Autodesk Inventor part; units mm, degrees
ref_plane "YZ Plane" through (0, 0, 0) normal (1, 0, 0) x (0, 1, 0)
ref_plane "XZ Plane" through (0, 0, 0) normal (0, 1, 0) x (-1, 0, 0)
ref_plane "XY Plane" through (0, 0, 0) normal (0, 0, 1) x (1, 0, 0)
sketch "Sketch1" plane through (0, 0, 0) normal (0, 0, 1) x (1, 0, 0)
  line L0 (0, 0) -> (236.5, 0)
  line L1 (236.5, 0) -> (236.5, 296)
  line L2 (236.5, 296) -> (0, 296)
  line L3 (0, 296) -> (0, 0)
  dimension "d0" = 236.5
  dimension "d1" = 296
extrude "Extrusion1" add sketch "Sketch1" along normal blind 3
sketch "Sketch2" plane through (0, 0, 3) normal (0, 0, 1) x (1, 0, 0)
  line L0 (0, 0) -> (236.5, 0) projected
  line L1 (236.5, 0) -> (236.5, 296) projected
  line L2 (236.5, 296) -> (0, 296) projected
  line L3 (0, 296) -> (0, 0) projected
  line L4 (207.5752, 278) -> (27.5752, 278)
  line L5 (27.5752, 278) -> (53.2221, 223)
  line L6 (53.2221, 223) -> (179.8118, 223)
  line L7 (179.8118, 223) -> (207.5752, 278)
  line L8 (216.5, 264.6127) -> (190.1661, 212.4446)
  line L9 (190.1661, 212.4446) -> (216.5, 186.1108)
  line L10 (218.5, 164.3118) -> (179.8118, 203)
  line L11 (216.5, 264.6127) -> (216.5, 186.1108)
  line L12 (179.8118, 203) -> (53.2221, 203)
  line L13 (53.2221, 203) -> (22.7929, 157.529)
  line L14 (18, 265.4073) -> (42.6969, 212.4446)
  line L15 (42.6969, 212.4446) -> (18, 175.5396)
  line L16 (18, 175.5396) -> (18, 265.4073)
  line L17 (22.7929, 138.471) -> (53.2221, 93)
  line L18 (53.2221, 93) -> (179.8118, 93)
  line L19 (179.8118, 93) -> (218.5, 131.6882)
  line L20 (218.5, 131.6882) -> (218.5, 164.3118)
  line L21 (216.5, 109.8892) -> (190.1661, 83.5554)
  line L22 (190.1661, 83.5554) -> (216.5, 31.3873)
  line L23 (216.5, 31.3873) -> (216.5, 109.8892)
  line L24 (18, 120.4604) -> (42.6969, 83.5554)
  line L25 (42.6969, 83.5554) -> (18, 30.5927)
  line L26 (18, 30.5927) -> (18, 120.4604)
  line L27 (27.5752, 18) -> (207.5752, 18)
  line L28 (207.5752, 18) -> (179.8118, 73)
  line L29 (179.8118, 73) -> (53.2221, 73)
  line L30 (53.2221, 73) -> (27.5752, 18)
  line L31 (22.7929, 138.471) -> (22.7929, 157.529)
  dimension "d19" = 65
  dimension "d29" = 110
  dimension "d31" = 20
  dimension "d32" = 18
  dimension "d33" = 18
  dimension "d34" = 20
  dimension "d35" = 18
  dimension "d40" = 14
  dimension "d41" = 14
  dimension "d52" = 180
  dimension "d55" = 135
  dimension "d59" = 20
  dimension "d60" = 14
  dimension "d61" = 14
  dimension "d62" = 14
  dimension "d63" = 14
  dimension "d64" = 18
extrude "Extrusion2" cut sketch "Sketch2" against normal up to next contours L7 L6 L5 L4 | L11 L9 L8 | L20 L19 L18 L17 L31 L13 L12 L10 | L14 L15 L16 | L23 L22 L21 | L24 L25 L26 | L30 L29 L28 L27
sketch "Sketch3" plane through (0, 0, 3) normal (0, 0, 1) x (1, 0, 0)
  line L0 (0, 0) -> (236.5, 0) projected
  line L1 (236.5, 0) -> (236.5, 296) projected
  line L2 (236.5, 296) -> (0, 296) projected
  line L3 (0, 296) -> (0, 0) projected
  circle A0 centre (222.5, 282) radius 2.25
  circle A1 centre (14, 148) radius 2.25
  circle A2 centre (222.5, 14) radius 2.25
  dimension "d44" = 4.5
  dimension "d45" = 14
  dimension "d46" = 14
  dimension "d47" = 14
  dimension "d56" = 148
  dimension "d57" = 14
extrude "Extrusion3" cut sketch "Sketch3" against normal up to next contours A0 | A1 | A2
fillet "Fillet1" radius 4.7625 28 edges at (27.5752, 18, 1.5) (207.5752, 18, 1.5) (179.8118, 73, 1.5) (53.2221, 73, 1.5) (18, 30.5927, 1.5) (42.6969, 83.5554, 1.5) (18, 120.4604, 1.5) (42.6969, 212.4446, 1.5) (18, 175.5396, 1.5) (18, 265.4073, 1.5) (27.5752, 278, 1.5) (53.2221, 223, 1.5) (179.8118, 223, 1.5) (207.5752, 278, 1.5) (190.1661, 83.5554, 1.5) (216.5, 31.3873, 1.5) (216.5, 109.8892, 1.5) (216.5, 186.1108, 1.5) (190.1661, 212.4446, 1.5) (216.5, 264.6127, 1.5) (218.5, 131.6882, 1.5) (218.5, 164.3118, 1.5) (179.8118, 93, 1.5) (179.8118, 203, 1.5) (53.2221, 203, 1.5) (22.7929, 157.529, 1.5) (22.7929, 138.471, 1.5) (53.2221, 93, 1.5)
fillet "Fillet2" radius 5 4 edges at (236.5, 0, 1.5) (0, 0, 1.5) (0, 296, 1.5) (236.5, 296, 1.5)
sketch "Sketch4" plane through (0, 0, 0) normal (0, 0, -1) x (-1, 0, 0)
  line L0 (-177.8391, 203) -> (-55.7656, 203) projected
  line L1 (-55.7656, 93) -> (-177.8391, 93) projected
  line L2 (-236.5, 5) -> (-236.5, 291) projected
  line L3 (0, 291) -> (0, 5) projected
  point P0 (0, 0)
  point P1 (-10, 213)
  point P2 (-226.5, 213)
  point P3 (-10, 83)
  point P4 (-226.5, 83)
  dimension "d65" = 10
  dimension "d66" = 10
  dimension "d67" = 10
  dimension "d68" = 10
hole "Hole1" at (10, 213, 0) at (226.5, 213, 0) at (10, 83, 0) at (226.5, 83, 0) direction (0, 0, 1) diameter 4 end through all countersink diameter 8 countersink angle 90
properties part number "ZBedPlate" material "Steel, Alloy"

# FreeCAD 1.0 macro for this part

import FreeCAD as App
import Part
import Sketcher
Q = App.Units.Quantity


def edges_at(feature, points):
    """Names of the edges that pass closest to the given points."""
    edges = feature.Shape.Edges
    near = lambda p: min(range(len(edges)), key=lambda i: edges[i].distToShape(Part.Vertex(*p))[0])
    return sorted({f"Edge{near(p) + 1}" for p in points})


def add_polygon(sketch, points):
    """Adds a closed chain of lines whose ends are joined by coincident constraints."""
    first, n = sketch.GeometryCount, len(points)
    for a, b in zip(points, points[1:] + points[:1]):
        sketch.addGeometry(Part.LineSegment(App.Vector(*a, 0), App.Vector(*b, 0)), False)
    for i in range(n):
        sketch.addConstraint(Sketcher.Constraint("Coincident", first + i, 2, first + (i + 1) % n, 1))

doc = App.newDocument("Part")
params = doc.addObject("Spreadsheet::Sheet", "Params")
for row, (alias, value) in enumerate([
    ("sketch1_height", "296 mm"),
    ("sketch1_width", "236.5 mm"),
    ("pad1_length", "3 mm"),
    ("sketch2_width", "180 mm"),
    ("sketch2_length", "61.61 mm"),
    ("sketch3_diameter", "4.5 mm"),
    ("pocket2_length", "3 mm"),
    ("fillet_radius", "4.7625 mm"),
    ("fillet2_radius", "5 mm"),
    ("sketch4_diameter", "4 mm"),
    ("hole_diameter", "4 mm"),
    ("hole_csink_diameter", "8 mm"),
], start=1):
    params.set(f"A{row}", alias)
    params.set(f"B{row}", "=" + value)
    params.setAlias(f"B{row}", alias)

body = doc.addObject("PartDesign::Body", "Body")

sketch1 = doc.addObject("Sketcher::SketchObject", "Sketch")
body.addObject(sketch1)
sketch1.AttachmentSupport = (doc.XY_Plane, [""])
sketch1.MapMode = "FlatFace"
add_polygon(sketch1, [(0, 296), (0, 0), (236.5, 0), (236.5, 296)])
sketch1.addConstraint([
    Sketcher.Constraint("Vertical", 0),
    Sketcher.Constraint("Horizontal", 1),
    Sketcher.Constraint("Vertical", 2),
    Sketcher.Constraint("Horizontal", 3),
    Sketcher.Constraint("Coincident", 0, 2, -1, 1),
    Sketcher.Constraint("DistanceY", 0, 2, 0, 1, Q("296 mm")),
    Sketcher.Constraint("DistanceX", 1, 1, 1, 2, Q("236.5 mm")),
])
sketch1.setExpression("Constraints[9]", "Params.sketch1_height")
sketch1.setExpression("Constraints[10]", "Params.sketch1_width")
pad1 = doc.addObject("PartDesign::Pad", "Pad")
body.addObject(pad1)
pad1.Profile = sketch1
pad1.setExpression("Length", "Params.pad1_length")

sketch2 = doc.addObject("Sketcher::SketchObject", "Sketch001")
body.addObject(sketch2)
sketch2.AttachmentSupport = (doc.XY_Plane, [""])
sketch2.MapMode = "FlatFace"
sketch2.AttachmentOffset = App.Placement(App.Vector(0, 0, 3), App.Rotation())
add_polygon(sketch2, [(179.8118, 223), (207.5752, 278), (27.5752, 278), (53.2221, 223)])
add_polygon(sketch2, [(216.5, 186.1108), (216.5, 264.6127), (190.1661, 212.4446)])
add_polygon(sketch2, [(218.5, 131.6882), (218.5, 164.3118), (179.8118, 203), (53.2221, 203), (22.7929, 157.529), (22.7929, 138.471), (53.2221, 93), (179.8118, 93)])
add_polygon(sketch2, [(42.6969, 212.4446), (18, 265.4073), (18, 175.5396)])
add_polygon(sketch2, [(216.5, 31.3873), (216.5, 109.8892), (190.1661, 83.5554)])
add_polygon(sketch2, [(42.6969, 83.5554), (18, 120.4604), (18, 30.5927)])
add_polygon(sketch2, [(53.2221, 73), (27.5752, 18), (207.5752, 18), (179.8118, 73)])
sketch2.addConstraint([
    Sketcher.Constraint("Horizontal", 1),
    Sketcher.Constraint("Horizontal", 3),
    Sketcher.Constraint("Vertical", 4),
    Sketcher.Constraint("Vertical", 7),
    Sketcher.Constraint("Horizontal", 9),
    Sketcher.Constraint("Vertical", 11),
    Sketcher.Constraint("Horizontal", 13),
    Sketcher.Constraint("Vertical", 16),
    Sketcher.Constraint("Vertical", 18),
    Sketcher.Constraint("Vertical", 22),
    Sketcher.Constraint("Horizontal", 25),
    Sketcher.Constraint("Horizontal", 27),
    Sketcher.Constraint("Parallel", 0, 5),
    Sketcher.Constraint("Parallel", 6, 8),
    Sketcher.Constraint("Perpendicular", 8, 14),
    Sketcher.Constraint("Parallel", 2, 15),
    Sketcher.Constraint("Parallel", 10, 17),
    Sketcher.Constraint("Parallel", 14, 19),
    Sketcher.Constraint("Parallel", 12, 21),
    Sketcher.Constraint("Parallel", 23, 24),
    Sketcher.Constraint("Parallel", 20, 26),
    Sketcher.Constraint("Horizontal", 5, 2, 17, 2),
    Sketcher.Constraint("Horizontal", 19, 2, 23, 2),
    Sketcher.Constraint("Vertical", 3, 2, 8, 2),
    Sketcher.Constraint("Vertical", 2, 2, 9, 2),
    Sketcher.Constraint("Vertical", 9, 2, 12, 2),
    Sketcher.Constraint("Vertical", 8, 2, 13, 2),
    Sketcher.Constraint("Vertical", 6, 2, 18, 2),
    Sketcher.Constraint("Vertical", 5, 2, 19, 2),
    Sketcher.Constraint("Vertical", 16, 2, 21, 2),
    Sketcher.Constraint("Vertical", 17, 2, 23, 2),
    Sketcher.Constraint("Vertical", 1, 2, 24, 2),
    Sketcher.Constraint("Vertical", 0, 2, 25, 2),
    Sketcher.Constraint("Vertical", 13, 2, 26, 2),
    Sketcher.Constraint("Vertical", 12, 2, 27, 2),
    Sketcher.Constraint("Equal", 4, 18),
    Sketcher.Constraint("Equal", 16, 22),
    Sketcher.Constraint("Equal", 8, 10),
    Sketcher.Constraint("Equal", 10, 12),
    Sketcher.Constraint("Equal", 5, 15),
    Sketcher.Constraint("DistanceX", 1, 2, 1, 1, Q("180 mm")),
    Sketcher.Constraint("Angle", 2, Q("-65 deg")),
    Sketcher.Constraint("DistanceX", -1, 1, 15, 2, Q("18 mm")),
    Sketcher.Constraint("DistanceY", -1, 1, 24, 2, Q("18 mm")),
    Sketcher.Constraint("DistanceY", 8, 2, 3, 2, Q("20 mm")),
    Sketcher.Constraint("DistanceY", 12, 2, 9, 2, Q("110 mm")),
    Sketcher.Constraint("DistanceY", 26, 2, 13, 2, Q("20 mm")),
    Sketcher.Constraint("DistanceY", -1, 1, 0, 2, Q("278 mm")),
    Sketcher.Constraint("DistanceX", 6, 2, 7, 2, Q("2 mm")),
    Sketcher.Constraint("DistanceX", -1, 1, 4, 2, Q("216.5 mm")),
    Sketcher.Constraint("Angle", 10, Q("-123.7904 deg")),
    Sketcher.Constraint("Distance", 0, Q("61.61 mm")),
    Sketcher.Constraint("DistanceY", 4, 1, 4, 2, Q("78.502 mm")),
    Sketcher.Constraint("DistanceY", 11, 2, 11, 1, Q("19.058 mm")),
    Sketcher.Constraint("DistanceY", 7, 2, 6, 2, Q("21.799 mm")),
    Sketcher.Constraint("DistanceY", 18, 2, 14, 2, Q("21.799 mm")),
])
sketch2.setExpression("Constraints[68]", "Params.sketch2_width")
sketch2.setExpression("Constraints[79]", "Params.sketch2_length")
pocket1 = doc.addObject("PartDesign::Pocket", "Pocket")
body.addObject(pocket1)
pocket1.Profile = sketch2
pocket1.Type = "UpToFirst"

sketch3 = doc.addObject("Sketcher::SketchObject", "Sketch002")
body.addObject(sketch3)
sketch3.AttachmentSupport = (doc.XY_Plane, [""])
sketch3.MapMode = "FlatFace"
sketch3.AttachmentOffset = App.Placement(App.Vector(0, 0, 3), App.Rotation())
sketch3.addGeometry([
    Part.Circle(App.Vector(222.5, 282, 0), App.Vector(0, 0, 1), 2.25),
    Part.Circle(App.Vector(14, 148, 0), App.Vector(0, 0, 1), 2.25),
    Part.Circle(App.Vector(222.5, 14, 0), App.Vector(0, 0, 1), 2.25),
], False)
sketch3.addConstraint([
    Sketcher.Constraint("Equal", 0, 1),
    Sketcher.Constraint("Equal", 1, 2),
    Sketcher.Constraint("Vertical", 0, 3, 2, 3),
    Sketcher.Constraint("Diameter", 0, Q("4.5 mm")),
    Sketcher.Constraint("DistanceX", -1, 1, 1, 3, Q("14 mm")),
    Sketcher.Constraint("DistanceY", -1, 1, 1, 3, Q("148 mm")),
    Sketcher.Constraint("DistanceY", -1, 1, 2, 3, Q("14 mm")),
    Sketcher.Constraint("DistanceY", -1, 1, 0, 3, Q("282 mm")),
    Sketcher.Constraint("DistanceX", -1, 1, 0, 3, Q("222.5 mm")),
])
sketch3.setExpression("Constraints[3]", "Params.sketch3_diameter")
pocket2 = doc.addObject("PartDesign::Pocket", "Pocket001")
body.addObject(pocket2)
pocket2.Profile = sketch3
pocket2.setExpression("Length", "Params.pocket2_length")
doc.recompute()

fillet = doc.addObject("PartDesign::Fillet", "Fillet")
body.addObject(fillet)
fillet.Base = (pocket2, edges_at(pocket2, [
    (27.575, 18, 1.5),
    (207.575, 18, 1.5),
    (179.812, 73, 1.5),
    (53.222, 73, 1.5),
    (18, 30.593, 1.5),
    (42.697, 83.555, 1.5),
    (18, 120.46, 1.5),
    (42.697, 212.445, 1.5),
    (18, 175.54, 1.5),
    (18, 265.407, 1.5),
    (27.575, 278, 1.5),
    (53.222, 223, 1.5),
    (179.812, 223, 1.5),
    (207.575, 278, 1.5),
    (190.166, 83.555, 1.5),
    (216.5, 31.387, 1.5),
    (216.5, 109.889, 1.5),
    (216.5, 186.111, 1.5),
    (190.166, 212.445, 1.5),
    (216.5, 264.613, 1.5),
    (218.5, 131.688, 1.5),
    (218.5, 164.312, 1.5),
    (179.812, 93, 1.5),
    (179.812, 203, 1.5),
    (53.222, 203, 1.5),
    (22.793, 157.529, 1.5),
    (22.793, 138.471, 1.5),
    (53.222, 93, 1.5),
]))
fillet.setExpression("Radius", "Params.fillet_radius")
doc.recompute()

fillet2 = doc.addObject("PartDesign::Fillet", "Fillet001")
body.addObject(fillet2)
fillet2.Base = (fillet, edges_at(fillet, [
    (236.5, 0, 1.5),
    (0, 0, 1.5),
    (0, 296, 1.5),
    (236.5, 296, 1.5),
]))
fillet2.setExpression("Radius", "Params.fillet2_radius")

sketch4 = doc.addObject("Sketcher::SketchObject", "Sketch003")
body.addObject(sketch4)
sketch4.AttachmentSupport = (doc.XY_Plane, [""])
sketch4.MapMode = "FlatFace"
sketch4.addGeometry([
    Part.Circle(App.Vector(10, 213, 0), App.Vector(0, 0, 1), 2),
    Part.Circle(App.Vector(226.5, 213, 0), App.Vector(0, 0, 1), 2),
    Part.Circle(App.Vector(10, 83, 0), App.Vector(0, 0, 1), 2),
    Part.Circle(App.Vector(226.5, 83, 0), App.Vector(0, 0, 1), 2),
], False)
sketch4.addConstraint([
    Sketcher.Constraint("Equal", 0, 1),
    Sketcher.Constraint("Equal", 1, 2),
    Sketcher.Constraint("Equal", 2, 3),
    Sketcher.Constraint("Horizontal", 0, 3, 1, 3),
    Sketcher.Constraint("Horizontal", 2, 3, 3, 3),
    Sketcher.Constraint("Vertical", 0, 3, 2, 3),
    Sketcher.Constraint("Vertical", 1, 3, 3, 3),
    Sketcher.Constraint("Diameter", 0, Q("4 mm")),
    Sketcher.Constraint("DistanceX", -1, 1, 0, 3, Q("10 mm")),
    Sketcher.Constraint("DistanceY", -1, 1, 0, 3, Q("213 mm")),
    Sketcher.Constraint("DistanceY", -1, 1, 2, 3, Q("83 mm")),
    Sketcher.Constraint("DistanceX", -1, 1, 1, 3, Q("226.5 mm")),
])
sketch4.setExpression("Constraints[7]", "Params.sketch4_diameter")
doc.recompute()
hole = doc.addObject("PartDesign::Hole", "Hole")
body.addObject(hole)
hole.Profile = sketch4
hole.ThreadType = "None"
hole.setExpression("Diameter", "Params.hole_diameter")
hole.DepthType = "ThroughAll"
hole.HoleCutType = "Countersink"
hole.setExpression("HoleCutDiameter", "Params.hole_csink_diameter")
hole.HoleCutCountersinkAngle = 90
hole.Reversed = True

doc.recompute()
